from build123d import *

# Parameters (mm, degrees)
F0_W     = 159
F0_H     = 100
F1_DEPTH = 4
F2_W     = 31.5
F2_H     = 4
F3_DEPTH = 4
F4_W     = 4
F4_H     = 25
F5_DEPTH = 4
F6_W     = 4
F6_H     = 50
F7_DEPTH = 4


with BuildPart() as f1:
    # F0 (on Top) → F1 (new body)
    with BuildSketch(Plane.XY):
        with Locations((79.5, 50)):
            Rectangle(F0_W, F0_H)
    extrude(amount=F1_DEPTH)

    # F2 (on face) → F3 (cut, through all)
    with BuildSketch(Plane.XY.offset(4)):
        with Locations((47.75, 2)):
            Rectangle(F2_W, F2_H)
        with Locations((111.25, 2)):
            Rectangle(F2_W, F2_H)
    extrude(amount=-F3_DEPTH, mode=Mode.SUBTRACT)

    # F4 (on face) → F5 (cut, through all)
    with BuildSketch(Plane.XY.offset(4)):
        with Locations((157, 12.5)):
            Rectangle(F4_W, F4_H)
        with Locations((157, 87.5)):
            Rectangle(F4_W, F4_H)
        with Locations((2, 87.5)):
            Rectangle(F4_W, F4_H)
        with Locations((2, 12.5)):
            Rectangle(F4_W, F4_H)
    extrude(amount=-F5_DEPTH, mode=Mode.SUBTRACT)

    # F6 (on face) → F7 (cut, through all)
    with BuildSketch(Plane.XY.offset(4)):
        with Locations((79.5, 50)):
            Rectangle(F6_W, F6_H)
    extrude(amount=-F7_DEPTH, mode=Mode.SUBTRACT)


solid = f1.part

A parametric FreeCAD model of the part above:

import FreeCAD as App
import Part
import Sketcher
from FreeCAD import Vector
Q = App.Units.Quantity


def add_polygon(sketch, points):
    """Adds a closed chain of lines whose ends are joined by coincident constraints."""
    first, n = sketch.GeometryCount, len(points)
    for a, b in zip(points, points[1:] + points[:1]):
        sketch.addGeometry(Part.LineSegment(App.Vector(*a, 0), App.Vector(*b, 0)), False)
    for i in range(n):
        sketch.addConstraint(Sketcher.Constraint("Coincident", first + i, 2, first + (i + 1) % n, 1))

doc = App.newDocument("Part")
body = doc.addObject("PartDesign::Body", "Body")

# Sketch on XY plane
sketch1 = body.newObject("Sketcher::SketchObject", "Sketch")
sketch1.AttachmentSupport = (doc.getObject("XY_Plane"), [""])
sketch1.MapMode = "FlatFace"
add_polygon(sketch1, [(0, 100), (0, 0), (159, 0), (159, 100)])  # lines 0-3
sketch1.addConstraint([
    Sketcher.Constraint("Vertical", 0),
    Sketcher.Constraint("Horizontal", 1),
    Sketcher.Constraint("Vertical", 2),
    Sketcher.Constraint("Horizontal", 3),
    Sketcher.Constraint("Coincident", 0, 2, -1, 1),
    Sketcher.Constraint("DistanceX", 1, 1, 1, 2, Q("159 mm")),
    Sketcher.Constraint("DistanceY", 0, 2, 0, 1, Q("100 mm")),
])
pad1 = body.newObject("PartDesign::Pad", "Pad")
pad1.Profile = sketch1
pad1.Length = 4

# Sketch on XY plane
sketch2 = body.newObject("Sketcher::SketchObject", "Sketch001")
sketch2.AttachmentSupport = (doc.getObject("XY_Plane"), [""])
sketch2.MapMode = "FlatFace"
sketch2.AttachmentOffset = App.Placement(Vector(0, 0, 4), App.Rotation())
add_polygon(sketch2, [(32, 4), (32, 0), (63.5, 0), (63.5, 4)])  # lines 0-3
add_polygon(sketch2, [(95.5, 4), (95.5, 0), (127, 0), (127, 4)])  # lines 4-7
sketch2.addConstraint([
    Sketcher.Constraint("Vertical", 0),
    Sketcher.Constraint("Horizontal", 1),
    Sketcher.Constraint("Vertical", 2),
    Sketcher.Constraint("Horizontal", 3),
    Sketcher.Constraint("Vertical", 4),
    Sketcher.Constraint("Horizontal", 5),
    Sketcher.Constraint("Vertical", 6),
    Sketcher.Constraint("Horizontal", 7),
    Sketcher.Constraint("PointOnObject", 0, 2, -1),
    Sketcher.Constraint("PointOnObject", 4, 2, -1),
    Sketcher.Constraint("Horizontal", 3, 2, 6, 2),
    Sketcher.Constraint("Equal", 3, 5),
    Sketcher.Constraint("DistanceY", 0, 2, 0, 1, Q("4 mm")),
    Sketcher.Constraint("DistanceX", 1, 1, 1, 2, Q("31.5 mm")),
    Sketcher.Constraint("DistanceX", -1, 1, 0, 2, Q("32 mm")),
    Sketcher.Constraint("DistanceX", -1, 1, 5, 2, Q("127 mm")),
])
pocket1 = body.newObject("PartDesign::Pocket", "Pocket")
pocket1.Profile = sketch2
pocket1.Type = "ThroughAll"

# Sketch on XY plane
sketch3 = body.newObject("Sketcher::SketchObject", "Sketch002")
sketch3.AttachmentSupport = (doc.getObject("XY_Plane"), [""])
sketch3.MapMode = "FlatFace"
sketch3.AttachmentOffset = App.Placement(Vector(0, 0, 4), App.Rotation())
add_polygon(sketch3, [(155, 25), (155, 0), (159, 0), (159, 25)])  # lines 0-3
add_polygon(sketch3, [(155, 100), (155, 75), (159, 75), (159, 100)])  # lines 4-7
add_polygon(sketch3, [(0, 100), (0, 75), (4, 75), (4, 100)])  # lines 8-11
add_polygon(sketch3, [(0, 25), (0, 0), (4, 0), (4, 25)])  # lines 12-15
sketch3.addConstraint([
    Sketcher.Constraint("Vertical", 0),
    Sketcher.Constraint("Horizontal", 1),
    Sketcher.Constraint("Vertical", 2),
    Sketcher.Constraint("Horizontal", 3),
    Sketcher.Constraint("Vertical", 4),
    Sketcher.Constraint("Horizontal", 5),
    Sketcher.Constraint("Vertical", 6),
    Sketcher.Constraint("Horizontal", 7),
    Sketcher.Constraint("Vertical", 8),
    Sketcher.Constraint("Horizontal", 9),
    Sketcher.Constraint("Vertical", 10),
    Sketcher.Constraint("Horizontal", 11),
    Sketcher.Constraint("Vertical", 12),
    Sketcher.Constraint("Horizontal", 13),
    Sketcher.Constraint("Vertical", 14),
    Sketcher.Constraint("Horizontal", 15),
    Sketcher.Constraint("Coincident", 12, 2, -1, 1),
    Sketcher.Constraint("PointOnObject", 0, 2, -1),
    Sketcher.Constraint("PointOnObject", 8, 2, -2),
    Sketcher.Constraint("Horizontal", 5, 2, 8, 2),
    Sketcher.Constraint("Horizontal", 7, 2, 10, 2),
    Sketcher.Constraint("Horizontal", 3, 2, 14, 2),
    Sketcher.Constraint("Vertical", 3, 2, 4, 2),
    Sketcher.Constraint("Vertical", 2, 2, 5, 2),
    Sketcher.Constraint("Vertical", 10, 2, 13, 2),
    Sketcher.Constraint("Equal", 7, 9),
    Sketcher.Constraint("Equal", 2, 4),
    Sketcher.Constraint("DistanceX", 1, 1, 1, 2, Q("4 mm")),
    Sketcher.Constraint("DistanceY", 0, 2, 0, 1, Q("25 mm")),
    Sketcher.Constraint("DistanceX", -1, 1, 0, 2, Q("155 mm")),
    Sketcher.Constraint("DistanceY", -1, 1, 4, 2, Q("75 mm")),
])
pocket2 = body.newObject("PartDesign::Pocket", "Pocket001")
pocket2.Profile = sketch3
pocket2.Type = "ThroughAll"

# Sketch on XY plane
sketch4 = body.newObject("Sketcher::SketchObject", "Sketch003")
sketch4.AttachmentSupport = (doc.getObject("XY_Plane"), [""])
sketch4.MapMode = "FlatFace"
sketch4.AttachmentOffset = App.Placement(Vector(0, 0, 4), App.Rotation())
add_polygon(sketch4, [(77.5, 75), (77.5, 25), (81.5, 25), (81.5, 75)])  # lines 0-3
sketch4.addConstraint([
    Sketcher.Constraint("Vertical", 0),
    Sketcher.Constraint("Horizontal", 1),
    Sketcher.Constraint("Vertical", 2),
    Sketcher.Constraint("Horizontal", 3),
    Sketcher.Constraint("DistanceX", 1, 1, 1, 2, Q("4 mm")),
    Sketcher.Constraint("DistanceY", 0, 2, 0, 1, Q("50 mm")),
    Sketcher.Constraint("DistanceY", -1, 1, 0, 2, Q("25 mm")),
    Sketcher.Constraint("DistanceX", -1, 1, 0, 2, Q("77.5 mm")),
])
pocket3 = body.newObject("PartDesign::Pocket", "Pocket002")
pocket3.Profile = sketch4
pocket3.Type = "ThroughAll"

doc.recompute()
